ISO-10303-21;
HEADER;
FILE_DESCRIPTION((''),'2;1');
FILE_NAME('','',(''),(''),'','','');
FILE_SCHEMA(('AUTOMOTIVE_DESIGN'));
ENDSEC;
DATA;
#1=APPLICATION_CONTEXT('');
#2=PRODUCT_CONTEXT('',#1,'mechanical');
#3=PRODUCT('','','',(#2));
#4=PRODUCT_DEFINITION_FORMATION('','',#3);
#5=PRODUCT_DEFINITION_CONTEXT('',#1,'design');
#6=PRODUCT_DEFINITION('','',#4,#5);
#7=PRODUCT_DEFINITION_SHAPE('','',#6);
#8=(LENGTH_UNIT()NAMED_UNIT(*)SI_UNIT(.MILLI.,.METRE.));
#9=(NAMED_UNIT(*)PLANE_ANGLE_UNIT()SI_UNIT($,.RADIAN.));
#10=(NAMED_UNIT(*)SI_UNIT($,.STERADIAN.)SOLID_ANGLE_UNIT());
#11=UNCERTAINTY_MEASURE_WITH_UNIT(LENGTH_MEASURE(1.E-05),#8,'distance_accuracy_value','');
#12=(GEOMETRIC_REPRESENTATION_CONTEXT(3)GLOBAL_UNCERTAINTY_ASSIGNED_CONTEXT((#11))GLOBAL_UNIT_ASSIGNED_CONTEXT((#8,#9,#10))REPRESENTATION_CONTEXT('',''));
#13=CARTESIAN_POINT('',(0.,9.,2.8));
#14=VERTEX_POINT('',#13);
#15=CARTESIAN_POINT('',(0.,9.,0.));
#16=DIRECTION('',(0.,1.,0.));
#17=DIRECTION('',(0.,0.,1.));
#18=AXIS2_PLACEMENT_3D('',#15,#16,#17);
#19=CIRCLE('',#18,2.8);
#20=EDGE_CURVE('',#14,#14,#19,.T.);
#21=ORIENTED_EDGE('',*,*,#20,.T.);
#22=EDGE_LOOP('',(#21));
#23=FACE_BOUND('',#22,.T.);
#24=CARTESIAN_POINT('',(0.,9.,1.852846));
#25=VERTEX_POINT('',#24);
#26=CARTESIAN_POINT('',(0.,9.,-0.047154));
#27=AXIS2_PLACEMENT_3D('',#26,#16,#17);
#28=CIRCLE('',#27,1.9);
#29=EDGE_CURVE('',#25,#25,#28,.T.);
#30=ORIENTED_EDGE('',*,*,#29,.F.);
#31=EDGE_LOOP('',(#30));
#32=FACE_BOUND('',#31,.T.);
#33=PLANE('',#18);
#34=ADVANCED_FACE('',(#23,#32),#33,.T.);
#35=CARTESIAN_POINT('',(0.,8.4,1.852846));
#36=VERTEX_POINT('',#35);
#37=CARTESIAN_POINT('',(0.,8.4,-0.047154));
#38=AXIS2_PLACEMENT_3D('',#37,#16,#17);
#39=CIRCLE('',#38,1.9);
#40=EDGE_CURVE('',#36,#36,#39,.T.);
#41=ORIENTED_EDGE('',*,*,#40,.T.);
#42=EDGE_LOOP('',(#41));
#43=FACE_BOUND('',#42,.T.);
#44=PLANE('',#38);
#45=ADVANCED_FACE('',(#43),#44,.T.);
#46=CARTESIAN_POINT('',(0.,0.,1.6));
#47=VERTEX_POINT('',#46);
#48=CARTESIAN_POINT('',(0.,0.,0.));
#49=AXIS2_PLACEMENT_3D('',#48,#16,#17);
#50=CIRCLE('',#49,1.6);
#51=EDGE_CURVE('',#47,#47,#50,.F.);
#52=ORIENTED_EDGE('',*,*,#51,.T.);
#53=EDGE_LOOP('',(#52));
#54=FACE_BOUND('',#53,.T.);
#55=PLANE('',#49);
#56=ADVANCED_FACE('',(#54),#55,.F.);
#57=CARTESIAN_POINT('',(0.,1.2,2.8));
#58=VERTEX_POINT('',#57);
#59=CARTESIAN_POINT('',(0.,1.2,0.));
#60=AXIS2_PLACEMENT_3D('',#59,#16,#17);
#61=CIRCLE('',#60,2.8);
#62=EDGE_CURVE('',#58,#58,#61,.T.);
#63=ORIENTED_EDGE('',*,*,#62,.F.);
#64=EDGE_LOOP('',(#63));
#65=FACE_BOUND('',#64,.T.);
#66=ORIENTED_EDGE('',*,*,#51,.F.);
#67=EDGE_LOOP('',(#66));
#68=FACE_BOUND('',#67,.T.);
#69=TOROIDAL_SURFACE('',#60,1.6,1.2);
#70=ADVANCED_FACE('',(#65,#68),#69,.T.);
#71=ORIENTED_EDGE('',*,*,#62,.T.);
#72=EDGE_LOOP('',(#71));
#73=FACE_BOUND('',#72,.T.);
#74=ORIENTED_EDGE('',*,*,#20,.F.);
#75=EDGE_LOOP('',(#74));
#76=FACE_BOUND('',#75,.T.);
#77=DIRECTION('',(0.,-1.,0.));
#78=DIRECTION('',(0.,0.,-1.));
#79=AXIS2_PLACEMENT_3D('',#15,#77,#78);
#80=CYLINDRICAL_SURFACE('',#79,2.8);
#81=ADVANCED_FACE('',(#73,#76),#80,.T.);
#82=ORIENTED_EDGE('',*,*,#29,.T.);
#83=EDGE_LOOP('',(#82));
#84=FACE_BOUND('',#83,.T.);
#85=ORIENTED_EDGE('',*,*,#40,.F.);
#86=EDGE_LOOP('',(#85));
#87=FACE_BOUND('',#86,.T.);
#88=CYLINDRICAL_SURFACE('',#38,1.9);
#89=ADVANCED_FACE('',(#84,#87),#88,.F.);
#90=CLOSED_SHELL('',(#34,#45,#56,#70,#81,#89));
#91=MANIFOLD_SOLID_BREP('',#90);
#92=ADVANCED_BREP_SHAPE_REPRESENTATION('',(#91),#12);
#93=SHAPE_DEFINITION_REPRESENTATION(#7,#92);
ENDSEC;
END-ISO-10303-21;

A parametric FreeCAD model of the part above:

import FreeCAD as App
import Part
import Sketcher

V = App.Vector
Q = App.Units.Quantity


def edges_at(feature, points):
    """Names of the edges that pass closest to the given points."""
    edges = feature.Shape.Edges
    near = lambda p: min(range(len(edges)), key=lambda i: edges[i].distToShape(Part.Vertex(*p))[0])
    return sorted({f"Edge{near(p) + 1}" for p in points})

doc = App.newDocument("Part")
body = doc.addObject("PartDesign::Body", "Body")

sketch1 = body.newObject("Sketcher::SketchObject", "Sketch")
sketch1.AttachmentSupport = (doc.getObject("XZ_Plane"), [""])
sketch1.MapMode = "FlatFace"
sketch1.addGeometry(Part.Circle(V(0, 0, 0), V(0, 0, 1), 2.8), False)
sketch1.addConstraint(Sketcher.Constraint("Coincident", 0, 3, -1, 1))
sketch1.addConstraint(Sketcher.Constraint("Diameter", 0, Q("5.6 mm")))
pad1 = body.newObject("PartDesign::Pad", "Pad")
pad1.Profile = sketch1
pad1.Length = 9
pad1.Reversed = True

sketch2 = body.newObject("Sketcher::SketchObject", "Sketch001")
sketch2.AttachmentSupport = (doc.getObject("XZ_Plane"), [""])
sketch2.MapMode = "FlatFace"
sketch2.AttachmentOffset = App.Placement(V(0, 0, -9), App.Rotation())
sketch2.addGeometry(Part.Circle(V(0, 0, 0), V(0, 0, 1), 1.9), False)
sketch2.addConstraint(Sketcher.Constraint("PointOnObject", 0, 3, -2))
sketch2.addConstraint(Sketcher.Constraint("Diameter", 0, Q("3.8 mm")))
sketch2.addConstraint(Sketcher.Constraint("DistanceY", 0, 3, -1, 1, Q("0.047154 mm")))
pocket1 = body.newObject("PartDesign::Pocket", "Pocket")
pocket1.Profile = sketch2
pocket1.Length = 0.6
pocket1.Reversed = True
doc.recompute()

fillet = body.newObject("PartDesign::Fillet", "Fillet")
fillet.Base = (pocket1, edges_at(pocket1, [(-2.8, 0, 0)]))
fillet.Radius = 1.2

doc.recompute()
